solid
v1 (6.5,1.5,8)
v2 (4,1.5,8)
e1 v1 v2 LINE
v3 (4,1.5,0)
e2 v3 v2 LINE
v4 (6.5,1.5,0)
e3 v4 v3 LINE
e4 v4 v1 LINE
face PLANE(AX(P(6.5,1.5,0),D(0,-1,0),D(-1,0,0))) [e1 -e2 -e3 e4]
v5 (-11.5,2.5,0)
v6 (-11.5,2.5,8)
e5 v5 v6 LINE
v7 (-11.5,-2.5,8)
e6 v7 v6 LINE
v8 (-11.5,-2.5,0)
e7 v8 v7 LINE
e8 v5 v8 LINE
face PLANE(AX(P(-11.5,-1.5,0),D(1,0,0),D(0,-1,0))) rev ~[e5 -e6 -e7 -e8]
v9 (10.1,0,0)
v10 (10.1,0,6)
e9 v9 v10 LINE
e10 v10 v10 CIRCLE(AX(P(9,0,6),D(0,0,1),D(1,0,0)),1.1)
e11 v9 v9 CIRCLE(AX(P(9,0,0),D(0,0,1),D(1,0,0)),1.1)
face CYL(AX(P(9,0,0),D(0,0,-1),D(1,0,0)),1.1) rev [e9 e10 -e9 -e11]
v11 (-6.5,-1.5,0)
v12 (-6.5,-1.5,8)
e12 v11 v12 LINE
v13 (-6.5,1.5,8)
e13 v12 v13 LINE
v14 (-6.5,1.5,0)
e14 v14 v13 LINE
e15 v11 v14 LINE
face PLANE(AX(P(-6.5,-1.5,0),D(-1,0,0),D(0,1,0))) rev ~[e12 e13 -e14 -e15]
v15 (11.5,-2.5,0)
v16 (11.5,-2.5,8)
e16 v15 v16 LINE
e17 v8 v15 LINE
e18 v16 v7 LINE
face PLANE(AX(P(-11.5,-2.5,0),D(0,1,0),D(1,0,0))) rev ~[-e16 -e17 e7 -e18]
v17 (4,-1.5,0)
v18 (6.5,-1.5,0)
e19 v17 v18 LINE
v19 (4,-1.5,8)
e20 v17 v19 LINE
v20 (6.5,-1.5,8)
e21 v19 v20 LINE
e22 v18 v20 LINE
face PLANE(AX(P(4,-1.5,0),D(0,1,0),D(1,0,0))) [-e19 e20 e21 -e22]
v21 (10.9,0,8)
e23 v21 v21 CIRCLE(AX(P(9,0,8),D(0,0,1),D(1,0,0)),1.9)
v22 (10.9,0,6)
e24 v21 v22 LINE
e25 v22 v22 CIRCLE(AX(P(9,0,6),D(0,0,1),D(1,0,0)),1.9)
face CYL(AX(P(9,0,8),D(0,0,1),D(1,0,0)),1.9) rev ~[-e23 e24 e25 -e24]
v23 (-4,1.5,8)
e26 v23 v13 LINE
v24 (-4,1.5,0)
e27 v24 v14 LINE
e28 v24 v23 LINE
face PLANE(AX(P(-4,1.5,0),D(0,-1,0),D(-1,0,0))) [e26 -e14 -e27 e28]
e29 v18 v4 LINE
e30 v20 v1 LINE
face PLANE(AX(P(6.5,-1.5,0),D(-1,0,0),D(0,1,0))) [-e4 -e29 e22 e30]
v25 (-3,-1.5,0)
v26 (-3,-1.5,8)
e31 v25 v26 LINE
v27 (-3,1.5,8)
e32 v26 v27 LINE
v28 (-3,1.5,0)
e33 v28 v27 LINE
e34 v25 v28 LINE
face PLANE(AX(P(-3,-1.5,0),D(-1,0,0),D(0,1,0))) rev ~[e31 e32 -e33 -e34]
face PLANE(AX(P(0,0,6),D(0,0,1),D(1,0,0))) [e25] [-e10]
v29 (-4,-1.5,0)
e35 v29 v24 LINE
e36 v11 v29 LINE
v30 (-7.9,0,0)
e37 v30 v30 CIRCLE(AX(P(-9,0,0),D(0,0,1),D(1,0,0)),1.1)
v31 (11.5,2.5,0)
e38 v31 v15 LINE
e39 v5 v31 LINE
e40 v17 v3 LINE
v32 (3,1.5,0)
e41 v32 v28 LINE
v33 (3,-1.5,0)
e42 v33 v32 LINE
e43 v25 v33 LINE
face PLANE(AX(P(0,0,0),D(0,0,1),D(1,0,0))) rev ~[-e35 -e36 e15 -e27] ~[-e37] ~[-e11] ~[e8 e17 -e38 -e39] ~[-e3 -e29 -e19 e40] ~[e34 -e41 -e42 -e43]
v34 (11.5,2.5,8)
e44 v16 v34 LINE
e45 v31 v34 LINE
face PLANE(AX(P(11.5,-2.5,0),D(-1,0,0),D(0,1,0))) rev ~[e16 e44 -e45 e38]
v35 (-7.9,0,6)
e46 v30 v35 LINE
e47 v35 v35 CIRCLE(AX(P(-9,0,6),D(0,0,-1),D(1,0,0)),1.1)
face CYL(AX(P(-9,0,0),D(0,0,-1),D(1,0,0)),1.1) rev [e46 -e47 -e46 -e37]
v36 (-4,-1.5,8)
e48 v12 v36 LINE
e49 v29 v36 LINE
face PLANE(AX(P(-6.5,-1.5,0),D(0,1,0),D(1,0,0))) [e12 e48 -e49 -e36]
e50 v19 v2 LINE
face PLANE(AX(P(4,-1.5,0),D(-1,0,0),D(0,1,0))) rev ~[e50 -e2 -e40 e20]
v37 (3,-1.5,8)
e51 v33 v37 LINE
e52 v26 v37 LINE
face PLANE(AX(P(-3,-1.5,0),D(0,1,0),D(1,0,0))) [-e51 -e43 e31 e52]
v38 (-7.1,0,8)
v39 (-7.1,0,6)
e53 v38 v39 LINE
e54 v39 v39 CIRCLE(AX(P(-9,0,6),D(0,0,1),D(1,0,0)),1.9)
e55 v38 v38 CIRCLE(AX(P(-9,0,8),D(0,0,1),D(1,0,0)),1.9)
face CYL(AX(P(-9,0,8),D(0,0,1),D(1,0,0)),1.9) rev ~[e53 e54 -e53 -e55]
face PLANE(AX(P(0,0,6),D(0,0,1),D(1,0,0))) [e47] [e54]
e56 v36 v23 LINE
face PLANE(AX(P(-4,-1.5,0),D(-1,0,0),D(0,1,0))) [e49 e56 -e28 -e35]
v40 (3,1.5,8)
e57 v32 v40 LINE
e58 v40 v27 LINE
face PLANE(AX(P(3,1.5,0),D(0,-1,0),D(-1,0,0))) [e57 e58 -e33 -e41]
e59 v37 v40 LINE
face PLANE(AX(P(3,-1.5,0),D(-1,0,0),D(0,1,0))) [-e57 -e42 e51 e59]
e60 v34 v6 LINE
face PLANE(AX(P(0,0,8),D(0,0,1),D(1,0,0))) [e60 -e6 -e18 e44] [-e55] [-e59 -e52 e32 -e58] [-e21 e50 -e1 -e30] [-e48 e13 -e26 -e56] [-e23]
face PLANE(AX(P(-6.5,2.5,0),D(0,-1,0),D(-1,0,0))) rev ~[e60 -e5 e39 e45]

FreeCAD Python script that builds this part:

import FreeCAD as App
import Part
import Sketcher
from FreeCAD import Vector
Q = App.Units.Quantity

doc = App.newDocument("Part")
body = doc.addObject("PartDesign::Body", "Body")

sketch1 = body.newObject("Sketcher::SketchObject", "Sketch")
sketch1.AttachmentSupport = (doc.getObject("XY_Plane"), [""])
sketch1.MapMode = "FlatFace"
sketch1.addGeometry([
    Part.LineSegment(Vector(-11.5, -2.5, 0), Vector(11.5, -2.5, 0)),
    Part.LineSegment(Vector(11.5, -2.5, 0), Vector(11.5, 2.5, 0)),
    Part.LineSegment(Vector(11.5, 2.5, 0), Vector(-11.5, 2.5, 0)),
    Part.LineSegment(Vector(-11.5, 2.5, 0), Vector(-11.5, -2.5, 0)),
    Part.LineSegment(Vector(-6.5, -1.5, 0), Vector(-6.5, 1.5, 0)),
    Part.LineSegment(Vector(-6.5, 1.5, 0), Vector(-4, 1.5, 0)),
    Part.LineSegment(Vector(-4, 1.5, 0), Vector(-4, -1.5, 0)),
    Part.LineSegment(Vector(-4, -1.5, 0), Vector(-6.5, -1.5, 0)),
    Part.Circle(Vector(-9, 0, 0), Vector(0, 0, 1), 1.1),
    Part.LineSegment(Vector(3, -1.5, 0), Vector(-3, -1.5, 0)),
    Part.LineSegment(Vector(-3, -1.5, 0), Vector(-3, 1.5, 0)),
    Part.LineSegment(Vector(-3, 1.5, 0), Vector(3, 1.5, 0)),
    Part.LineSegment(Vector(3, 1.5, 0), Vector(3, -1.5, 0)),
    Part.LineSegment(Vector(6.5, -1.5, 0), Vector(4, -1.5, 0)),
    Part.LineSegment(Vector(4, -1.5, 0), Vector(4, 1.5, 0)),
    Part.LineSegment(Vector(4, 1.5, 0), Vector(6.5, 1.5, 0)),
    Part.LineSegment(Vector(6.5, 1.5, 0), Vector(6.5, -1.5, 0)),
    Part.Circle(Vector(9, 0, 0), Vector(0, 0, 1), 1.1),
], False)
sketch1.addConstraint([
    Sketcher.Constraint("Coincident", 0, 2, 1, 1),
    Sketcher.Constraint("Coincident", 1, 2, 2, 1),
    Sketcher.Constraint("Coincident", 2, 2, 3, 1),
    Sketcher.Constraint("Coincident", 3, 2, 0, 1),
    Sketcher.Constraint("Coincident", 4, 2, 5, 1),
    Sketcher.Constraint("Coincident", 5, 2, 6, 1),
    Sketcher.Constraint("Coincident", 6, 2, 7, 1),
    Sketcher.Constraint("Coincident", 7, 2, 4, 1),
    Sketcher.Constraint("Coincident", 9, 2, 10, 1),
    Sketcher.Constraint("Coincident", 10, 2, 11, 1),
    Sketcher.Constraint("Coincident", 11, 2, 12, 1),
    Sketcher.Constraint("Coincident", 12, 2, 9, 1),
    Sketcher.Constraint("Coincident", 13, 2, 14, 1),
    Sketcher.Constraint("Coincident", 14, 2, 15, 1),
    Sketcher.Constraint("Coincident", 15, 2, 16, 1),
    Sketcher.Constraint("Coincident", 16, 2, 13, 1),
    Sketcher.Constraint("Horizontal", 0),
    Sketcher.Constraint("Vertical", 1),
    Sketcher.Constraint("Horizontal", 2),
    Sketcher.Constraint("Vertical", 3),
    Sketcher.Constraint("Vertical", 4),
    Sketcher.Constraint("Horizontal", 5),
    Sketcher.Constraint("Vertical", 6),
    Sketcher.Constraint("Horizontal", 7),
    Sketcher.Constraint("Horizontal", 9),
    Sketcher.Constraint("Vertical", 10),
    Sketcher.Constraint("Horizontal", 11),
    Sketcher.Constraint("Vertical", 12),
    Sketcher.Constraint("Horizontal", 13),
    Sketcher.Constraint("Vertical", 14),
    Sketcher.Constraint("Horizontal", 15),
    Sketcher.Constraint("Vertical", 16),
    Sketcher.Constraint("Equal", 8, 17),
    Sketcher.Constraint("Symmetric", 8, 3, 17, 3, -1, 1),
    Sketcher.Constraint("Symmetric", 0, 2, 2, 2, -1, 1),
    Sketcher.Constraint("Symmetric", 9, 2, 11, 2, -1, 1),
    Sketcher.Constraint("Symmetric", 5, 2, 13, 2, -1, 1),
    Sketcher.Constraint("Symmetric", 7, 2, 15, 2, -1, 1),
    Sketcher.Constraint("PointOnObject", 8, 3, -1),
    Sketcher.Constraint("Horizontal", 7, 2, 9, 2),
    Sketcher.Constraint("Horizontal", 5, 2, 10, 2),
    Sketcher.Constraint("Diameter", 8, Q("2.2 mm")),
    Sketcher.Constraint("DistanceX", 0, 1, 0, 2, Q("23 mm")),
    Sketcher.Constraint("DistanceY", 1, 1, 1, 2, Q("5 mm")),
    Sketcher.Constraint("DistanceX", 2, 2, 4, 2, Q("5 mm")),
    Sketcher.Constraint("DistanceX", 8, 3, 5, 2, Q("5 mm")),
    Sketcher.Constraint("DistanceX", 9, 2, 9, 1, Q("6 mm")),
    Sketcher.Constraint("DistanceY", 4, 1, 4, 2, Q("3 mm")),
    Sketcher.Constraint("DistanceX", 5, 1, 5, 2, Q("2.5 mm")),
])
pad1 = body.newObject("PartDesign::Pad", "Pad")
pad1.Profile = sketch1
pad1.Length = 8

sketch2 = body.newObject("Sketcher::SketchObject", "Sketch001")
sketch2.AttachmentSupport = (doc.getObject("XY_Plane"), [""])
sketch2.MapMode = "FlatFace"
sketch2.AttachmentOffset = App.Placement(Vector(0, 0, 8), App.Rotation())
sketch2.addGeometry([
    Part.Circle(Vector(-9, 0, 0), Vector(0, 0, 1), 1.9),
    Part.Circle(Vector(9, 0, 0), Vector(0, 0, 1), 1.9),
    Part.Circle(Vector(9, 0, 0), Vector(0, 0, 1), 1.1),
], False)
sketch2.addConstraint([
    Sketcher.Constraint("Coincident", 2, 3, 1, 3),
    Sketcher.Constraint("Equal", 0, 1),
    Sketcher.Constraint("Symmetric", 0, 3, 1, 3, -1, 1),
    Sketcher.Constraint("PointOnObject", 0, 3, -1),
    Sketcher.Constraint("Diameter", 0, Q("3.8 mm")),
    Sketcher.Constraint("Diameter", 2, Q("2.2 mm")),
    Sketcher.Constraint("DistanceX", 0, 3, -1, 1, Q("9 mm")),
])
pocket1 = body.newObject("PartDesign::Pocket", "Pocket")
pocket1.Profile = sketch2
pocket1.Length = 2

doc.recompute()
